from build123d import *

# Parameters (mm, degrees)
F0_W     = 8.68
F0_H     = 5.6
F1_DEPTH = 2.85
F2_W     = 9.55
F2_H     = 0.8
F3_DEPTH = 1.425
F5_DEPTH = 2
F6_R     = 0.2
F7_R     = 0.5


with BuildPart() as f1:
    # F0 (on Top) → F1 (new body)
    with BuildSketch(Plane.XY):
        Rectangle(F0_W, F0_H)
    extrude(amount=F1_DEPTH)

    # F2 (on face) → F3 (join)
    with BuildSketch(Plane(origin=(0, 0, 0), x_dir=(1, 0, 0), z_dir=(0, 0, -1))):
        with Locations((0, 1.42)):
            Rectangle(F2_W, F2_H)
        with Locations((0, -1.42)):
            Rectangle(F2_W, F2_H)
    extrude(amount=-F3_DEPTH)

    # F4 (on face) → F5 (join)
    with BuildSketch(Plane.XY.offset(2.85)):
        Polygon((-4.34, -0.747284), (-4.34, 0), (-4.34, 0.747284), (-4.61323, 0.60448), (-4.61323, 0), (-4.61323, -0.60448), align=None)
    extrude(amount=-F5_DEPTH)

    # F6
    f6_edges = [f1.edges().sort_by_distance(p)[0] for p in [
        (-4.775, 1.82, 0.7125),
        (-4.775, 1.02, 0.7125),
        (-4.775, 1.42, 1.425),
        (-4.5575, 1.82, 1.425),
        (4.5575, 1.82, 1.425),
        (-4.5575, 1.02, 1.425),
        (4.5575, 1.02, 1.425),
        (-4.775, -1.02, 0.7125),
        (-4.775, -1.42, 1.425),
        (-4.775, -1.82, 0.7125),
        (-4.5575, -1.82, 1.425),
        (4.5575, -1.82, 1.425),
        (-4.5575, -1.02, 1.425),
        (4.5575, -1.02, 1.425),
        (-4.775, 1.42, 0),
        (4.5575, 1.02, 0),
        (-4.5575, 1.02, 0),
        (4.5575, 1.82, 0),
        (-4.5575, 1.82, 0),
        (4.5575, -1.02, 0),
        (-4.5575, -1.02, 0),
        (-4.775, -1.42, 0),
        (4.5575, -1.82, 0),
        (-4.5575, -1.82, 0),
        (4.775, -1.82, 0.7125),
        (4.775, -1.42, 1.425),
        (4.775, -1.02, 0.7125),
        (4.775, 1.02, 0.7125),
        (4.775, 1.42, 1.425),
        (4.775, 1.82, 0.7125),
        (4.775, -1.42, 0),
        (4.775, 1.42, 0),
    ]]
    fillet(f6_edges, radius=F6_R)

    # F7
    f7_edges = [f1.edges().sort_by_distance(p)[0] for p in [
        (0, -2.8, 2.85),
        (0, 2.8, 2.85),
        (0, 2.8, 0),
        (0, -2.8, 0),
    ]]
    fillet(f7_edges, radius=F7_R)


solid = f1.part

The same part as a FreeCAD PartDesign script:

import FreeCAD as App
import Part
import Sketcher

V = App.Vector


def edges_at(feature, points):
    """Names of the edges that pass closest to the given points."""
    edges = feature.Shape.Edges
    near = lambda p: min(range(len(edges)), key=lambda i: edges[i].distToShape(Part.Vertex(*p))[0])
    return sorted({f"Edge{near(p) + 1}" for p in points})


def add_polygon(sketch, points):
    """Adds a closed chain of lines whose ends are joined by coincident constraints."""
    first, n = sketch.GeometryCount, len(points)
    for a, b in zip(points, points[1:] + points[:1]):
        sketch.addGeometry(Part.LineSegment(App.Vector(*a, 0), App.Vector(*b, 0)), False)
    for i in range(n):
        sketch.addConstraint(Sketcher.Constraint("Coincident", first + i, 2, first + (i + 1) % n, 1))

doc = App.newDocument("Part")
params = doc.addObject("Spreadsheet::Sheet", "Params")
for row, (alias, value) in enumerate([
    ("sketch1_height", "5.6 mm"),
    ("sketch1_width", "8.68 mm"),
    ("pad1_length", "2.85 mm"),
    ("sketch2_height", "0.8 mm"),
    ("sketch2_width", "9.55 mm"),
    ("pad2_length", "1.425 mm"),
    ("pad3_length", "2 mm"),
    ("fillet_radius", "0.2 mm"),
    ("fillet2_radius", "0.5 mm"),
], start=1):
    params.set(f"A{row}", alias)
    params.set(f"B{row}", "=" + value)
    params.setAlias(f"B{row}", alias)

body = doc.addObject("PartDesign::Body", "Body")

# Sketch on XY plane
sketch1 = body.newObject("Sketcher::SketchObject", "Sketch")
sketch1.AttachmentSupport = (doc.getObject("XY_Plane"), [""])
sketch1.MapMode = "FlatFace"
add_polygon(sketch1, [(-4, 3), (-4, -3), (4, -3), (4, 3)])  # lines 0-3
sketch1.addConstraint([
    Sketcher.Constraint("Vertical", 0),
    Sketcher.Constraint("Horizontal", 1),
    Sketcher.Constraint("Vertical", 2),
    Sketcher.Constraint("Horizontal", 3),
    Sketcher.Constraint("Symmetric", 0, 2, 2, 2, -1, 1),
    Sketcher.Constraint("DistanceY", 0, 2, 0, 1, 5.6),
    Sketcher.Constraint("DistanceX", 1, 1, 1, 2, 8.68),
])
sketch1.setExpression("Constraints[9]", "Params.sketch1_height")
sketch1.setExpression("Constraints[10]", "Params.sketch1_width")
pad1 = body.newObject("PartDesign::Pad", "Pad")
pad1.Profile = sketch1
pad1.setExpression("Length", "Params.pad1_length")

# Sketch on XY plane
sketch2 = body.newObject("Sketcher::SketchObject", "Sketch001")
sketch2.AttachmentSupport = (doc.getObject("XY_Plane"), [""])
sketch2.MapMode = "FlatFace"
add_polygon(sketch2, [(-4.8, -1.8), (-4.8, -1), (4.8, -1), (4.8, -1.8)])  # lines 0-3
add_polygon(sketch2, [(-4.8, 1), (-4.8, 1.8), (4.8, 1.8), (4.8, 1)])  # lines 4-7
sketch2.addConstraint([
    Sketcher.Constraint("Vertical", 0),
    Sketcher.Constraint("Horizontal", 1),
    Sketcher.Constraint("Vertical", 2),
    Sketcher.Constraint("Horizontal", 3),
    Sketcher.Constraint("Vertical", 4),
    Sketcher.Constraint("Horizontal", 5),
    Sketcher.Constraint("Vertical", 6),
    Sketcher.Constraint("Horizontal", 7),
    Sketcher.Constraint("Symmetric", 2, 2, 4, 2, -1, 1),
    Sketcher.Constraint("Symmetric", 0, 2, 6, 2, -1, 1),
    Sketcher.Constraint("Vertical", 3, 2, 4, 2),
    Sketcher.Constraint("DistanceY", 0, 1, 0, 2, 0.8),
    Sketcher.Constraint("DistanceX", 1, 1, 1, 2, 9.55),
    Sketcher.Constraint("DistanceY", 0, 2, -1, 1, 1.02),
])
sketch2.setExpression("Constraints[19]", "Params.sketch2_height")
sketch2.setExpression("Constraints[20]", "Params.sketch2_width")
pad2 = body.newObject("PartDesign::Pad", "Pad001")
pad2.Profile = sketch2
pad2.setExpression("Length", "Params.pad2_length")

# Sketch on XY plane
sketch3 = body.newObject("Sketcher::SketchObject", "Sketch002")
sketch3.AttachmentSupport = (doc.getObject("XY_Plane"), [""])
sketch3.MapMode = "FlatFace"
sketch3.AttachmentOffset = App.Placement(V(0, 0, 2.85), App.Rotation())
add_polygon(sketch3, [(-4.34, -0.75), (-4.34, 0.75), (-4.61, 0.6), (-4.61, -0.6)])  # lines 0-3
sketch3.addConstraint([
    Sketcher.Constraint("Vertical", 0),
    Sketcher.Constraint("Vertical", 2),
    Sketcher.Constraint("Equal", 1, 3),
    Sketcher.Constraint("DistanceX", 0, 2, -1, 1, 4.34),
    Sketcher.Constraint("DistanceY", 2, 2, 2, 1, 1.20896),
    Sketcher.Constraint("DistanceY", 0, 1, 0, 2, 1.494568),
    Sketcher.Constraint("DistanceX", 1, 2, -1, 1, 4.61323),
    Sketcher.Constraint("DistanceY", -1, 1, 1, 2, 0.60448),
])
pad3 = body.newObject("PartDesign::Pad", "Pad002")
pad3.Profile = sketch3
pad3.setExpression("Length", "Params.pad3_length")
pad3.Reversed = True
doc.recompute()

fillet = body.newObject("PartDesign::Fillet", "Fillet")
fillet.Base = (pad3, edges_at(pad3, [
    (-4.775, 1.82, 0.713),
    (-4.775, 1.02, 0.713),
    (-4.775, 1.42, 1.425),
    (-4.558, 1.82, 1.425),
    (4.558, 1.82, 1.425),
    (-4.558, 1.02, 1.425),
    (4.558, 1.02, 1.425),
    (-4.775, -1.02, 0.713),
    (-4.775, -1.42, 1.425),
    (-4.775, -1.82, 0.713),
    (-4.558, -1.82, 1.425),
    (4.558, -1.82, 1.425),
    (-4.558, -1.02, 1.425),
    (4.558, -1.02, 1.425),
    (-4.775, 1.42, 0),
    (4.558, 1.02, 0),
    (-4.558, 1.02, 0),
    (4.558, 1.82, 0),
    (-4.558, 1.82, 0),
    (4.558, -1.02, 0),
    (-4.558, -1.02, 0),
    (-4.775, -1.42, 0),
    (4.558, -1.82, 0),
    (-4.558, -1.82, 0),
    (4.775, -1.82, 0.713),
    (4.775, -1.42, 1.425),
    (4.775, -1.02, 0.713),
    (4.775, 1.02, 0.713),
    (4.775, 1.42, 1.425),
    (4.775, 1.82, 0.713),
    (4.775, -1.42, 0),
    (4.775, 1.42, 0),
]))
fillet.setExpression("Radius", "Params.fillet_radius")
doc.recompute()

fillet2 = body.newObject("PartDesign::Fillet", "Fillet001")
fillet2.Base = (fillet, edges_at(fillet, [
    (0, -2.8, 2.85),
    (0, 2.8, 2.85),
    (0, 2.8, 0),
    (0, -2.8, 0),
]))
fillet2.setExpression("Radius", "Params.fillet2_radius")

doc.recompute()
